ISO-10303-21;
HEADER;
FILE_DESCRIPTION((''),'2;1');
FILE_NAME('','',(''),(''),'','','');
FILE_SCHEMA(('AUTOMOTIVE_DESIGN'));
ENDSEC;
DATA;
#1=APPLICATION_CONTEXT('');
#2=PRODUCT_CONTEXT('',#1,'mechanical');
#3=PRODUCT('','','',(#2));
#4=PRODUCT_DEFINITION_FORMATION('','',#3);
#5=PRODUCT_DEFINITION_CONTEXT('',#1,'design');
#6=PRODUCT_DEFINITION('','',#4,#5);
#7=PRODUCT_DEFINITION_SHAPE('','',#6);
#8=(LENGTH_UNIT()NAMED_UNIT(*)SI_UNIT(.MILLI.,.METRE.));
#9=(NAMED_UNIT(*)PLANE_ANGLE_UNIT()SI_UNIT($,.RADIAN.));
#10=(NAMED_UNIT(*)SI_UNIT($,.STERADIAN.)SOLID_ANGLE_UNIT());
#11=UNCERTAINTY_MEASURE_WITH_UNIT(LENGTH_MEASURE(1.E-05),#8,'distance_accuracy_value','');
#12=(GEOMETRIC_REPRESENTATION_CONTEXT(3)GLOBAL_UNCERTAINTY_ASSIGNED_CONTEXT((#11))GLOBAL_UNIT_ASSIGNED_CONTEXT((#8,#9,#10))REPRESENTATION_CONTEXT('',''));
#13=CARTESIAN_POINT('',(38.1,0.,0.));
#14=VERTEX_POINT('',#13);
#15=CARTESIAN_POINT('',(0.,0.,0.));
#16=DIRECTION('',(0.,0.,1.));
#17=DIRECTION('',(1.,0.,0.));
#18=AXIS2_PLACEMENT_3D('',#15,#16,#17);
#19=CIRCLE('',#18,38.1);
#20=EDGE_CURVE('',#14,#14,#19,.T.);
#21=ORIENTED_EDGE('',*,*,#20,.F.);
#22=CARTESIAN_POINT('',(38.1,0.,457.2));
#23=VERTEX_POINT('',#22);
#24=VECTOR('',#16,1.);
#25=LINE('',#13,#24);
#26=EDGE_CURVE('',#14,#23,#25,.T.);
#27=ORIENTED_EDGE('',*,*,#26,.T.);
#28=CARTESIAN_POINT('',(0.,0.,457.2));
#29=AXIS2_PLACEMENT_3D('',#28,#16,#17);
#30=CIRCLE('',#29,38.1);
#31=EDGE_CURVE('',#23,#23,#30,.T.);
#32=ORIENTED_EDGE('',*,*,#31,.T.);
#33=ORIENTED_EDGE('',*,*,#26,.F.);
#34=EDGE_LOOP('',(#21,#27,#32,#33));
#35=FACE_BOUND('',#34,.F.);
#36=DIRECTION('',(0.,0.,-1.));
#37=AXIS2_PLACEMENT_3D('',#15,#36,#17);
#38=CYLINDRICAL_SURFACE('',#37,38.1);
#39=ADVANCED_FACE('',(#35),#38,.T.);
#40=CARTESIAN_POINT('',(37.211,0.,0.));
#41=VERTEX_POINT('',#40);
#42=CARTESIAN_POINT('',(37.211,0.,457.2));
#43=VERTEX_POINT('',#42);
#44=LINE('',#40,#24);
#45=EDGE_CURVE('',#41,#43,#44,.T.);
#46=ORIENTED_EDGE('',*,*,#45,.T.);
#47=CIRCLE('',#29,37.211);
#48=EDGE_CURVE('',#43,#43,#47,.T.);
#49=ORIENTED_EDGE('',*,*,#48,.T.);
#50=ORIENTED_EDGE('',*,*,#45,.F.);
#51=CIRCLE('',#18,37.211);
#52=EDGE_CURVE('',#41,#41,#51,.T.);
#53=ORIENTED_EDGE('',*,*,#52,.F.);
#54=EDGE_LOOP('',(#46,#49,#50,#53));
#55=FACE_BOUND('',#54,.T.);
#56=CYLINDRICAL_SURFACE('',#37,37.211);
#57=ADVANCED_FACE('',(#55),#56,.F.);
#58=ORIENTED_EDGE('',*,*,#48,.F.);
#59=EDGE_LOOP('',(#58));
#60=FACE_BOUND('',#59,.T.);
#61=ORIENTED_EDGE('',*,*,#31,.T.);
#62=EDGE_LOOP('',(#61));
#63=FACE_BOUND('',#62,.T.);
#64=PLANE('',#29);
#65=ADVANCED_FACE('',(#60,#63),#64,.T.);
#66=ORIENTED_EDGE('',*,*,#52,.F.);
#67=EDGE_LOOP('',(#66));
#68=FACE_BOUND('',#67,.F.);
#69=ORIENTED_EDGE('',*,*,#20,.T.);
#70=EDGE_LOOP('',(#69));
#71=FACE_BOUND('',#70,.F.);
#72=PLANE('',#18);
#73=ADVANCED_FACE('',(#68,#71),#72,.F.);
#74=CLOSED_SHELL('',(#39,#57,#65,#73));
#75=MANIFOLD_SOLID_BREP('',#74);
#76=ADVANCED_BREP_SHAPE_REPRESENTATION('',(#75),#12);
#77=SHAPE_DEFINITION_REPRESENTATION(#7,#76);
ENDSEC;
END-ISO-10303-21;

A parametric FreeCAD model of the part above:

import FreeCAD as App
import Part
import Sketcher
from FreeCAD import Vector
Q = App.Units.Quantity

doc = App.newDocument("Part")
body = doc.addObject("PartDesign::Body", "Body")

# Sketch on XY plane
sketch1 = body.newObject("Sketcher::SketchObject", "Sketch")
sketch1.AttachmentSupport = (doc.getObject("XY_Plane"), [""])
sketch1.MapMode = "FlatFace"
sketch1.addGeometry([
    Part.Circle(Vector(0, 0, 0), Vector(0, 0, 1), 38),
    Part.Circle(Vector(0, 0, 0), Vector(0, 0, 1), 37),
], False)
sketch1.addConstraint([
    Sketcher.Constraint("Coincident", 0, 3, -1, 1),
    Sketcher.Constraint("Coincident", 1, 3, -1, 1),
    Sketcher.Constraint("Diameter", 0, Q("3 in")),
    Sketcher.Constraint("Diameter", 1, Q("2.93 in")),
])
pad1 = body.newObject("PartDesign::Pad", "Pad")
pad1.Profile = sketch1
pad1.Length = Q("18 in")

doc.recompute()
